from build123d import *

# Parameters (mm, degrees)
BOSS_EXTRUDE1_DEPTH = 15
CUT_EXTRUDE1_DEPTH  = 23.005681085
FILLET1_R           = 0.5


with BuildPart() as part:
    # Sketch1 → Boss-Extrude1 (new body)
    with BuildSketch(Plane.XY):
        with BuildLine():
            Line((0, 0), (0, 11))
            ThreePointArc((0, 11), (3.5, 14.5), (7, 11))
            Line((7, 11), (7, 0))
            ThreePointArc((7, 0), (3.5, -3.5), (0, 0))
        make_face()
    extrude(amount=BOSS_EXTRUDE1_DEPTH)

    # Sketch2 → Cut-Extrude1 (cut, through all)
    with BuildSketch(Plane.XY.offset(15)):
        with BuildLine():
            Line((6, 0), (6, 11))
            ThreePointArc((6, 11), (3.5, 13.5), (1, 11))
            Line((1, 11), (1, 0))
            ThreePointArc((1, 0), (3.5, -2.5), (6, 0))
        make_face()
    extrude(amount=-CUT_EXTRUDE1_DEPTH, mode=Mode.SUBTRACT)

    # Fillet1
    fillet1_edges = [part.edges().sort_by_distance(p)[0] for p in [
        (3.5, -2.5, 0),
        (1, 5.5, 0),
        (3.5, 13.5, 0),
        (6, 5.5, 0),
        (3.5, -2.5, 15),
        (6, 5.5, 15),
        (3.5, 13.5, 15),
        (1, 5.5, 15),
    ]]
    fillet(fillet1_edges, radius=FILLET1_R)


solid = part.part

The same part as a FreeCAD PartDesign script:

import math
import FreeCAD as App
import Part
import Sketcher

V = App.Vector
Q = App.Units.Quantity


def edges_at(feature, points):
    """Names of the edges that pass closest to the given points."""
    edges = feature.Shape.Edges
    near = lambda p: min(range(len(edges)), key=lambda i: edges[i].distToShape(Part.Vertex(*p))[0])
    return sorted({f"Edge{near(p) + 1}" for p in points})

doc = App.newDocument("Part")
body = doc.addObject("PartDesign::Body", "Body")

sketch1 = body.newObject("Sketcher::SketchObject", "Sketch")
sketch1.AttachmentSupport = (doc.getObject("XY_Plane"), [""])
sketch1.MapMode = "FlatFace"
sketch1.addGeometry([
    Part.LineSegment(V(0, 11, 0), V(0, 0, 0)),
    Part.ArcOfCircle(Part.Circle(V(3.5, 0, 0), V(0, 0, 1), 3.5), math.radians(180), math.radians(360)),
    Part.LineSegment(V(7, 0, 0), V(7, 11, 0)),
    Part.ArcOfCircle(Part.Circle(V(3.5, 11, 0), V(0, 0, 1), 3.5), math.radians(0), math.radians(180)),
], False)
sketch1.addConstraint([
    Sketcher.Constraint("Tangent", 0, 2, 1, 1),
    Sketcher.Constraint("Tangent", 1, 2, 2, 1),
    Sketcher.Constraint("Tangent", 2, 2, 3, 1),
    Sketcher.Constraint("Tangent", 3, 2, 0, 1),
    Sketcher.Constraint("Vertical", 0),
    Sketcher.Constraint("Vertical", 2),
    Sketcher.Constraint("Coincident", 0, 2, -1, 1),
    Sketcher.Constraint("Radius", 1, Q("3.5 mm")),
    Sketcher.Constraint("DistanceY", 0, 2, 0, 1, Q("11 mm")),
])
pad1 = body.newObject("PartDesign::Pad", "Pad")
pad1.Profile = sketch1
pad1.Length = 15

sketch2 = body.newObject("Sketcher::SketchObject", "Sketch001")
sketch2.AttachmentSupport = (doc.getObject("XY_Plane"), [""])
sketch2.MapMode = "FlatFace"
sketch2.AttachmentOffset = App.Placement(V(0, 0, 15), App.Rotation())
sketch2.addGeometry([
    Part.LineSegment(V(6, 0, 0), V(6, 11, 0)),
    Part.ArcOfCircle(Part.Circle(V(3.5, 11, 0), V(0, 0, 1), 2.5), math.radians(0), math.radians(180)),
    Part.LineSegment(V(1, 11, 0), V(1, 0, 0)),
    Part.ArcOfCircle(Part.Circle(V(3.5, 0, 0), V(0, 0, 1), 2.5), math.radians(180), math.radians(360)),
], False)
sketch2.addConstraint([
    Sketcher.Constraint("Tangent", 0, 2, 1, 1),
    Sketcher.Constraint("Tangent", 1, 2, 2, 1),
    Sketcher.Constraint("Tangent", 2, 2, 3, 1),
    Sketcher.Constraint("Tangent", 3, 2, 0, 1),
    Sketcher.Constraint("Vertical", 0),
    Sketcher.Constraint("Vertical", 2),
    Sketcher.Constraint("PointOnObject", 3, 3, -1),
    Sketcher.Constraint("Radius", 1, Q("2.5 mm")),
    Sketcher.Constraint("DistanceY", 0, 1, 0, 2, Q("11 mm")),
    Sketcher.Constraint("DistanceX", -1, 1, 0, 2, Q("6 mm")),
])
pocket1 = body.newObject("PartDesign::Pocket", "Pocket")
pocket1.Profile = sketch2
pocket1.Type = "ThroughAll"
doc.recompute()

fillet = body.newObject("PartDesign::Fillet", "Fillet")
fillet.Base = (pocket1, edges_at(pocket1, [
    (3.5, -2.5, 0),
    (1, 5.5, 0),
    (3.5, 13.5, 0),
    (6, 5.5, 0),
    (3.5, -2.5, 15),
    (6, 5.5, 15),
    (3.5, 13.5, 15),
    (1, 5.5, 15),
]))
fillet.Radius = 0.5

doc.recompute()
